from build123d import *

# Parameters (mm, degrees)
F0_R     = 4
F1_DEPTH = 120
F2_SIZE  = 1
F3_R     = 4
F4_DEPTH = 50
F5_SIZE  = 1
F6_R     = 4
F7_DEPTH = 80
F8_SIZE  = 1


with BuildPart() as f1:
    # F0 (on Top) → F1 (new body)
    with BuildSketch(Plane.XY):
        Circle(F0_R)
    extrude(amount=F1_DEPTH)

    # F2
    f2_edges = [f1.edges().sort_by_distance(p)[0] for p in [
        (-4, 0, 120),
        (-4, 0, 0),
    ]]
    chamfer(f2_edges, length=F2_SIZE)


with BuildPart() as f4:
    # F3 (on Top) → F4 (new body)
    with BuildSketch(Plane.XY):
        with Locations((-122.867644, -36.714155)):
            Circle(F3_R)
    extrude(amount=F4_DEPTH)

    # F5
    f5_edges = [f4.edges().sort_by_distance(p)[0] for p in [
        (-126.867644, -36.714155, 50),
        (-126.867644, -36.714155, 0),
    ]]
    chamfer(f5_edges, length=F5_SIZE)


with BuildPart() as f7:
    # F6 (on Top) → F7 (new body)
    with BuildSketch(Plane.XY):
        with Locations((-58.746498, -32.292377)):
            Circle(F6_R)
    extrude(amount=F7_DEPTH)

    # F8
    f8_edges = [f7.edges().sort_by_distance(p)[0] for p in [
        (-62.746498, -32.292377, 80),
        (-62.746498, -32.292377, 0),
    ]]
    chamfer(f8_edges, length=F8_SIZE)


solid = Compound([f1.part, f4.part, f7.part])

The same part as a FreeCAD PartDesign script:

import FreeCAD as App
import Part
import Sketcher


def edges_at(feature, points):
    """Names of the edges that pass closest to the given points."""
    edges = feature.Shape.Edges
    near = lambda p: min(range(len(edges)), key=lambda i: edges[i].distToShape(Part.Vertex(*p))[0])
    return sorted({f"Edge{near(p) + 1}" for p in points})

doc = App.newDocument("Part")
body = doc.addObject("PartDesign::Body", "Body")

# Sketch on XY plane
sketch1 = doc.addObject("Sketcher::SketchObject", "Sketch")
body.addObject(sketch1)
sketch1.AttachmentSupport = (doc.XY_Plane, [""])
sketch1.MapMode = "FlatFace"
sketch1.addGeometry(Part.Circle(App.Vector(0, 0, 0), App.Vector(0, 0, 1), 4), False)
sketch1.addConstraint([
    Sketcher.Constraint("Coincident", 0, 3, -1, 1),
    Sketcher.Constraint("Diameter", 0, 8.0),
])
pad1 = doc.addObject("PartDesign::Pad", "Pad")
body.addObject(pad1)
pad1.Profile = sketch1
pad1.Length = 120
doc.recompute()

chamfer = doc.addObject("PartDesign::Chamfer", "Chamfer")
body.addObject(chamfer)
chamfer.Base = (pad1, edges_at(pad1, [(-4, 0, 120), (-4, 0, 0)]))
chamfer.Size = 1
body2 = doc.addObject("PartDesign::Body", "Body001")

# Sketch on XY plane
sketch2 = doc.addObject("Sketcher::SketchObject", "Sketch001")
body2.addObject(sketch2)
sketch2.AttachmentSupport = (doc.getObject("XY_Plane001"), [""])
sketch2.MapMode = "FlatFace"
sketch2.addGeometry(Part.Circle(App.Vector(-122.9, -36.7, 0), App.Vector(0, 0, 1), 4), False)
sketch2.addConstraint([
    Sketcher.Constraint("Diameter", 0, 8.0),
    Sketcher.Constraint("DistanceX", 0, 3, -1, 1, 122.867644),
    Sketcher.Constraint("DistanceY", 0, 3, -1, 1, 36.714155),
])
pad2 = doc.addObject("PartDesign::Pad", "Pad001")
body2.addObject(pad2)
pad2.Profile = sketch2
pad2.Length = 50
doc.recompute()

chamfer2 = doc.addObject("PartDesign::Chamfer", "Chamfer001")
body2.addObject(chamfer2)
chamfer2.Base = (pad2, edges_at(pad2, [(-126.868, -36.714, 50), (-126.868, -36.714, 0)]))
chamfer2.Size = 1
body3 = doc.addObject("PartDesign::Body", "Body002")

# Sketch on XY plane
sketch3 = doc.addObject("Sketcher::SketchObject", "Sketch002")
body3.addObject(sketch3)
sketch3.AttachmentSupport = (doc.getObject("XY_Plane002"), [""])
sketch3.MapMode = "FlatFace"
sketch3.addGeometry(Part.Circle(App.Vector(-58.7, -32.3, 0), App.Vector(0, 0, 1), 4), False)
sketch3.addConstraint([
    Sketcher.Constraint("Diameter", 0, 8.0),
    Sketcher.Constraint("DistanceX", 0, 3, -1, 1, 58.746498),
    Sketcher.Constraint("DistanceY", 0, 3, -1, 1, 32.292377),
])
pad3 = doc.addObject("PartDesign::Pad", "Pad002")
body3.addObject(pad3)
pad3.Profile = sketch3
pad3.Length = 80
doc.recompute()

chamfer3 = doc.addObject("PartDesign::Chamfer", "Chamfer002")
body3.addObject(chamfer3)
chamfer3.Base = (pad3, edges_at(pad3, [(-62.746, -32.292, 80), (-62.746, -32.292, 0)]))
chamfer3.Size = 1

doc.recompute()
